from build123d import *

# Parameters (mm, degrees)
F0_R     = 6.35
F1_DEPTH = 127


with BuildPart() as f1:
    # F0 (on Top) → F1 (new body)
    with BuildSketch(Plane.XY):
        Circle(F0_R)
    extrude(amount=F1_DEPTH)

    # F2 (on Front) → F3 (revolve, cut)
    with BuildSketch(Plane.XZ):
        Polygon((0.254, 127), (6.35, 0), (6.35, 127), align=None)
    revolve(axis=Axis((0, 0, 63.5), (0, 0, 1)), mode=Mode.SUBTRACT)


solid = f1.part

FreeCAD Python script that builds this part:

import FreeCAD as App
import Part
import Sketcher
from FreeCAD import Vector
Q = App.Units.Quantity

doc = App.newDocument("Part")
body = doc.addObject("PartDesign::Body", "Body")

sketch1 = body.newObject("Sketcher::SketchObject", "Sketch")
sketch1.AttachmentSupport = (doc.getObject("XY_Plane"), [""])
sketch1.MapMode = "FlatFace"
sketch1.addGeometry(Part.Circle(Vector(0, 0, 0), Vector(0, 0, 1), 6), False)
sketch1.addConstraint([
    Sketcher.Constraint("Coincident", 0, 3, -1, 1),
    Sketcher.Constraint("Diameter", 0, Q("0.5 in")),
])
pad1 = body.newObject("PartDesign::Pad", "Pad")
pad1.Profile = sketch1
pad1.Length = Q("5 in")

sketch2 = body.newObject("Sketcher::SketchObject", "Sketch001")
sketch2.AttachmentSupport = (doc.getObject("XZ_Plane"), [""])
sketch2.MapMode = "FlatFace"
sketch2.addGeometry([
    Part.LineSegment(Vector(0, 127, 0), Vector(6, 0, 0)),
    Part.LineSegment(Vector(6, 0, 0), Vector(6, 127, 0)),
    Part.LineSegment(Vector(6, 127, 0), Vector(0, 127, 0)),
], False)
sketch2.addConstraint([
    Sketcher.Constraint("Coincident", 0, 2, 1, 1),
    Sketcher.Constraint("Coincident", 1, 2, 2, 1),
    Sketcher.Constraint("Coincident", 2, 2, 0, 1),
    Sketcher.Constraint("Vertical", 1),
    Sketcher.Constraint("Horizontal", 2),
    Sketcher.Constraint("PointOnObject", 0, 2, -1),
    Sketcher.Constraint("DistanceY", 1, 1, 1, 2, Q("5 in")),
    Sketcher.Constraint("DistanceX", 2, 2, 2, 1, Q("0.24 in")),
    Sketcher.Constraint("DistanceX", -1, 1, 0, 2, Q("0.25 in")),
])
groove = body.newObject("PartDesign::Groove", "Groove")
groove.Profile = sketch2
groove.ReferenceAxis = (sketch2, ["V_Axis"])
groove.Angle = 360

doc.recompute()
